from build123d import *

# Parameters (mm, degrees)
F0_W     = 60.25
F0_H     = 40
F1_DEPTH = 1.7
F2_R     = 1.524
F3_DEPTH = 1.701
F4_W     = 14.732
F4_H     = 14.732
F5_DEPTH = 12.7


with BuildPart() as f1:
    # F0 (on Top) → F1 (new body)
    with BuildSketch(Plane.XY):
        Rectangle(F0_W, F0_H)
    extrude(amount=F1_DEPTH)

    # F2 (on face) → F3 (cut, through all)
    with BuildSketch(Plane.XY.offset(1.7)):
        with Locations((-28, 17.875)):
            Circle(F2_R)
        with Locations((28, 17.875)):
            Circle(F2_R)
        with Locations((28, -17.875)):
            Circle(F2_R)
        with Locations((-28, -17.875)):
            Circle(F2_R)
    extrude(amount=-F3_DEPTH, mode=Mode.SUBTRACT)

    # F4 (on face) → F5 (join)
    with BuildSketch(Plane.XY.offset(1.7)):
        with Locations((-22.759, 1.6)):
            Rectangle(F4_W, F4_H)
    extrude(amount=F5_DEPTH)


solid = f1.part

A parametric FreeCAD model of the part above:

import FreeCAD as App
import Part
import Sketcher
Q = App.Units.Quantity


def add_polygon(sketch, points):
    """Adds a closed chain of lines whose ends are joined by coincident constraints."""
    first, n = sketch.GeometryCount, len(points)
    for a, b in zip(points, points[1:] + points[:1]):
        sketch.addGeometry(Part.LineSegment(App.Vector(*a, 0), App.Vector(*b, 0)), False)
    for i in range(n):
        sketch.addConstraint(Sketcher.Constraint("Coincident", first + i, 2, first + (i + 1) % n, 1))

doc = App.newDocument("Part")
body = doc.addObject("PartDesign::Body", "Body")

sketch1 = doc.addObject("Sketcher::SketchObject", "Sketch")
body.addObject(sketch1)
sketch1.AttachmentSupport = (doc.XY_Plane, [""])
sketch1.MapMode = "FlatFace"
add_polygon(sketch1, [(-30, 20), (-30, -20), (30, -20), (30, 20)])
sketch1.addConstraint([
    Sketcher.Constraint("Vertical", 0),
    Sketcher.Constraint("Horizontal", 1),
    Sketcher.Constraint("Vertical", 2),
    Sketcher.Constraint("Horizontal", 3),
    Sketcher.Constraint("Symmetric", 0, 2, 2, 2, -1, 1),
    Sketcher.Constraint("DistanceX", 1, 1, 1, 2, 60.25),
    Sketcher.Constraint("DistanceY", 0, 2, 0, 1, 40.0),
])
pad1 = doc.addObject("PartDesign::Pad", "Pad")
body.addObject(pad1)
pad1.Profile = sketch1
pad1.Length = 1.7

sketch2 = doc.addObject("Sketcher::SketchObject", "Sketch001")
body.addObject(sketch2)
sketch2.AttachmentSupport = (doc.XY_Plane, [""])
sketch2.MapMode = "FlatFace"
sketch2.AttachmentOffset = App.Placement(App.Vector(0, 0, 1.7), App.Rotation())
sketch2.addGeometry([
    Part.Circle(App.Vector(-28, 17.9, 0), App.Vector(0, 0, 1), 1.5),
    Part.Circle(App.Vector(28, 17.9, 0), App.Vector(0, 0, 1), 1.5),
    Part.Circle(App.Vector(28, -17.9, 0), App.Vector(0, 0, 1), 1.5),
    Part.Circle(App.Vector(-28, -17.9, 0), App.Vector(0, 0, 1), 1.5),
], False)
sketch2.addConstraint([
    Sketcher.Constraint("Equal", 0, 1),
    Sketcher.Constraint("Equal", 1, 2),
    Sketcher.Constraint("Equal", 2, 3),
    Sketcher.Constraint("Symmetric", 0, 3, 2, 3, -1, 1),
    Sketcher.Constraint("Symmetric", 1, 3, 3, 3, -1, 1),
    Sketcher.Constraint("Symmetric", 0, 3, 1, 3, -2),
    Sketcher.Constraint("Diameter", 0, Q("0.12 in")),
    Sketcher.Constraint("DistanceX", 0, 3, -1, 1, 28.0),
    Sketcher.Constraint("DistanceY", -1, 1, 0, 3, 17.875),
])
pocket1 = doc.addObject("PartDesign::Pocket", "Pocket")
body.addObject(pocket1)
pocket1.Profile = sketch2
pocket1.Type = "ThroughAll"

sketch3 = doc.addObject("Sketcher::SketchObject", "Sketch002")
body.addObject(sketch3)
sketch3.AttachmentSupport = (doc.XY_Plane, [""])
sketch3.MapMode = "FlatFace"
sketch3.AttachmentOffset = App.Placement(App.Vector(0, 0, 1.7), App.Rotation())
add_polygon(sketch3, [(-30, 9), (-30, -6), (-15, -6), (-15, 9)])
sketch3.addConstraint([
    Sketcher.Constraint("Vertical", 0),
    Sketcher.Constraint("Horizontal", 1),
    Sketcher.Constraint("Vertical", 2),
    Sketcher.Constraint("Horizontal", 3),
    Sketcher.Constraint("Equal", 3, 0),
    Sketcher.Constraint("DistanceX", 1, 1, 1, 2, Q("0.58 in")),
    Sketcher.Constraint("DistanceX", 0, 2, -1, 1, 30.125),
    Sketcher.Constraint("DistanceY", 0, 2, -1, 1, 5.766),
])
pad2 = doc.addObject("PartDesign::Pad", "Pad001")
body.addObject(pad2)
pad2.Profile = sketch3
pad2.Length = Q("0.5 in")

doc.recompute()
